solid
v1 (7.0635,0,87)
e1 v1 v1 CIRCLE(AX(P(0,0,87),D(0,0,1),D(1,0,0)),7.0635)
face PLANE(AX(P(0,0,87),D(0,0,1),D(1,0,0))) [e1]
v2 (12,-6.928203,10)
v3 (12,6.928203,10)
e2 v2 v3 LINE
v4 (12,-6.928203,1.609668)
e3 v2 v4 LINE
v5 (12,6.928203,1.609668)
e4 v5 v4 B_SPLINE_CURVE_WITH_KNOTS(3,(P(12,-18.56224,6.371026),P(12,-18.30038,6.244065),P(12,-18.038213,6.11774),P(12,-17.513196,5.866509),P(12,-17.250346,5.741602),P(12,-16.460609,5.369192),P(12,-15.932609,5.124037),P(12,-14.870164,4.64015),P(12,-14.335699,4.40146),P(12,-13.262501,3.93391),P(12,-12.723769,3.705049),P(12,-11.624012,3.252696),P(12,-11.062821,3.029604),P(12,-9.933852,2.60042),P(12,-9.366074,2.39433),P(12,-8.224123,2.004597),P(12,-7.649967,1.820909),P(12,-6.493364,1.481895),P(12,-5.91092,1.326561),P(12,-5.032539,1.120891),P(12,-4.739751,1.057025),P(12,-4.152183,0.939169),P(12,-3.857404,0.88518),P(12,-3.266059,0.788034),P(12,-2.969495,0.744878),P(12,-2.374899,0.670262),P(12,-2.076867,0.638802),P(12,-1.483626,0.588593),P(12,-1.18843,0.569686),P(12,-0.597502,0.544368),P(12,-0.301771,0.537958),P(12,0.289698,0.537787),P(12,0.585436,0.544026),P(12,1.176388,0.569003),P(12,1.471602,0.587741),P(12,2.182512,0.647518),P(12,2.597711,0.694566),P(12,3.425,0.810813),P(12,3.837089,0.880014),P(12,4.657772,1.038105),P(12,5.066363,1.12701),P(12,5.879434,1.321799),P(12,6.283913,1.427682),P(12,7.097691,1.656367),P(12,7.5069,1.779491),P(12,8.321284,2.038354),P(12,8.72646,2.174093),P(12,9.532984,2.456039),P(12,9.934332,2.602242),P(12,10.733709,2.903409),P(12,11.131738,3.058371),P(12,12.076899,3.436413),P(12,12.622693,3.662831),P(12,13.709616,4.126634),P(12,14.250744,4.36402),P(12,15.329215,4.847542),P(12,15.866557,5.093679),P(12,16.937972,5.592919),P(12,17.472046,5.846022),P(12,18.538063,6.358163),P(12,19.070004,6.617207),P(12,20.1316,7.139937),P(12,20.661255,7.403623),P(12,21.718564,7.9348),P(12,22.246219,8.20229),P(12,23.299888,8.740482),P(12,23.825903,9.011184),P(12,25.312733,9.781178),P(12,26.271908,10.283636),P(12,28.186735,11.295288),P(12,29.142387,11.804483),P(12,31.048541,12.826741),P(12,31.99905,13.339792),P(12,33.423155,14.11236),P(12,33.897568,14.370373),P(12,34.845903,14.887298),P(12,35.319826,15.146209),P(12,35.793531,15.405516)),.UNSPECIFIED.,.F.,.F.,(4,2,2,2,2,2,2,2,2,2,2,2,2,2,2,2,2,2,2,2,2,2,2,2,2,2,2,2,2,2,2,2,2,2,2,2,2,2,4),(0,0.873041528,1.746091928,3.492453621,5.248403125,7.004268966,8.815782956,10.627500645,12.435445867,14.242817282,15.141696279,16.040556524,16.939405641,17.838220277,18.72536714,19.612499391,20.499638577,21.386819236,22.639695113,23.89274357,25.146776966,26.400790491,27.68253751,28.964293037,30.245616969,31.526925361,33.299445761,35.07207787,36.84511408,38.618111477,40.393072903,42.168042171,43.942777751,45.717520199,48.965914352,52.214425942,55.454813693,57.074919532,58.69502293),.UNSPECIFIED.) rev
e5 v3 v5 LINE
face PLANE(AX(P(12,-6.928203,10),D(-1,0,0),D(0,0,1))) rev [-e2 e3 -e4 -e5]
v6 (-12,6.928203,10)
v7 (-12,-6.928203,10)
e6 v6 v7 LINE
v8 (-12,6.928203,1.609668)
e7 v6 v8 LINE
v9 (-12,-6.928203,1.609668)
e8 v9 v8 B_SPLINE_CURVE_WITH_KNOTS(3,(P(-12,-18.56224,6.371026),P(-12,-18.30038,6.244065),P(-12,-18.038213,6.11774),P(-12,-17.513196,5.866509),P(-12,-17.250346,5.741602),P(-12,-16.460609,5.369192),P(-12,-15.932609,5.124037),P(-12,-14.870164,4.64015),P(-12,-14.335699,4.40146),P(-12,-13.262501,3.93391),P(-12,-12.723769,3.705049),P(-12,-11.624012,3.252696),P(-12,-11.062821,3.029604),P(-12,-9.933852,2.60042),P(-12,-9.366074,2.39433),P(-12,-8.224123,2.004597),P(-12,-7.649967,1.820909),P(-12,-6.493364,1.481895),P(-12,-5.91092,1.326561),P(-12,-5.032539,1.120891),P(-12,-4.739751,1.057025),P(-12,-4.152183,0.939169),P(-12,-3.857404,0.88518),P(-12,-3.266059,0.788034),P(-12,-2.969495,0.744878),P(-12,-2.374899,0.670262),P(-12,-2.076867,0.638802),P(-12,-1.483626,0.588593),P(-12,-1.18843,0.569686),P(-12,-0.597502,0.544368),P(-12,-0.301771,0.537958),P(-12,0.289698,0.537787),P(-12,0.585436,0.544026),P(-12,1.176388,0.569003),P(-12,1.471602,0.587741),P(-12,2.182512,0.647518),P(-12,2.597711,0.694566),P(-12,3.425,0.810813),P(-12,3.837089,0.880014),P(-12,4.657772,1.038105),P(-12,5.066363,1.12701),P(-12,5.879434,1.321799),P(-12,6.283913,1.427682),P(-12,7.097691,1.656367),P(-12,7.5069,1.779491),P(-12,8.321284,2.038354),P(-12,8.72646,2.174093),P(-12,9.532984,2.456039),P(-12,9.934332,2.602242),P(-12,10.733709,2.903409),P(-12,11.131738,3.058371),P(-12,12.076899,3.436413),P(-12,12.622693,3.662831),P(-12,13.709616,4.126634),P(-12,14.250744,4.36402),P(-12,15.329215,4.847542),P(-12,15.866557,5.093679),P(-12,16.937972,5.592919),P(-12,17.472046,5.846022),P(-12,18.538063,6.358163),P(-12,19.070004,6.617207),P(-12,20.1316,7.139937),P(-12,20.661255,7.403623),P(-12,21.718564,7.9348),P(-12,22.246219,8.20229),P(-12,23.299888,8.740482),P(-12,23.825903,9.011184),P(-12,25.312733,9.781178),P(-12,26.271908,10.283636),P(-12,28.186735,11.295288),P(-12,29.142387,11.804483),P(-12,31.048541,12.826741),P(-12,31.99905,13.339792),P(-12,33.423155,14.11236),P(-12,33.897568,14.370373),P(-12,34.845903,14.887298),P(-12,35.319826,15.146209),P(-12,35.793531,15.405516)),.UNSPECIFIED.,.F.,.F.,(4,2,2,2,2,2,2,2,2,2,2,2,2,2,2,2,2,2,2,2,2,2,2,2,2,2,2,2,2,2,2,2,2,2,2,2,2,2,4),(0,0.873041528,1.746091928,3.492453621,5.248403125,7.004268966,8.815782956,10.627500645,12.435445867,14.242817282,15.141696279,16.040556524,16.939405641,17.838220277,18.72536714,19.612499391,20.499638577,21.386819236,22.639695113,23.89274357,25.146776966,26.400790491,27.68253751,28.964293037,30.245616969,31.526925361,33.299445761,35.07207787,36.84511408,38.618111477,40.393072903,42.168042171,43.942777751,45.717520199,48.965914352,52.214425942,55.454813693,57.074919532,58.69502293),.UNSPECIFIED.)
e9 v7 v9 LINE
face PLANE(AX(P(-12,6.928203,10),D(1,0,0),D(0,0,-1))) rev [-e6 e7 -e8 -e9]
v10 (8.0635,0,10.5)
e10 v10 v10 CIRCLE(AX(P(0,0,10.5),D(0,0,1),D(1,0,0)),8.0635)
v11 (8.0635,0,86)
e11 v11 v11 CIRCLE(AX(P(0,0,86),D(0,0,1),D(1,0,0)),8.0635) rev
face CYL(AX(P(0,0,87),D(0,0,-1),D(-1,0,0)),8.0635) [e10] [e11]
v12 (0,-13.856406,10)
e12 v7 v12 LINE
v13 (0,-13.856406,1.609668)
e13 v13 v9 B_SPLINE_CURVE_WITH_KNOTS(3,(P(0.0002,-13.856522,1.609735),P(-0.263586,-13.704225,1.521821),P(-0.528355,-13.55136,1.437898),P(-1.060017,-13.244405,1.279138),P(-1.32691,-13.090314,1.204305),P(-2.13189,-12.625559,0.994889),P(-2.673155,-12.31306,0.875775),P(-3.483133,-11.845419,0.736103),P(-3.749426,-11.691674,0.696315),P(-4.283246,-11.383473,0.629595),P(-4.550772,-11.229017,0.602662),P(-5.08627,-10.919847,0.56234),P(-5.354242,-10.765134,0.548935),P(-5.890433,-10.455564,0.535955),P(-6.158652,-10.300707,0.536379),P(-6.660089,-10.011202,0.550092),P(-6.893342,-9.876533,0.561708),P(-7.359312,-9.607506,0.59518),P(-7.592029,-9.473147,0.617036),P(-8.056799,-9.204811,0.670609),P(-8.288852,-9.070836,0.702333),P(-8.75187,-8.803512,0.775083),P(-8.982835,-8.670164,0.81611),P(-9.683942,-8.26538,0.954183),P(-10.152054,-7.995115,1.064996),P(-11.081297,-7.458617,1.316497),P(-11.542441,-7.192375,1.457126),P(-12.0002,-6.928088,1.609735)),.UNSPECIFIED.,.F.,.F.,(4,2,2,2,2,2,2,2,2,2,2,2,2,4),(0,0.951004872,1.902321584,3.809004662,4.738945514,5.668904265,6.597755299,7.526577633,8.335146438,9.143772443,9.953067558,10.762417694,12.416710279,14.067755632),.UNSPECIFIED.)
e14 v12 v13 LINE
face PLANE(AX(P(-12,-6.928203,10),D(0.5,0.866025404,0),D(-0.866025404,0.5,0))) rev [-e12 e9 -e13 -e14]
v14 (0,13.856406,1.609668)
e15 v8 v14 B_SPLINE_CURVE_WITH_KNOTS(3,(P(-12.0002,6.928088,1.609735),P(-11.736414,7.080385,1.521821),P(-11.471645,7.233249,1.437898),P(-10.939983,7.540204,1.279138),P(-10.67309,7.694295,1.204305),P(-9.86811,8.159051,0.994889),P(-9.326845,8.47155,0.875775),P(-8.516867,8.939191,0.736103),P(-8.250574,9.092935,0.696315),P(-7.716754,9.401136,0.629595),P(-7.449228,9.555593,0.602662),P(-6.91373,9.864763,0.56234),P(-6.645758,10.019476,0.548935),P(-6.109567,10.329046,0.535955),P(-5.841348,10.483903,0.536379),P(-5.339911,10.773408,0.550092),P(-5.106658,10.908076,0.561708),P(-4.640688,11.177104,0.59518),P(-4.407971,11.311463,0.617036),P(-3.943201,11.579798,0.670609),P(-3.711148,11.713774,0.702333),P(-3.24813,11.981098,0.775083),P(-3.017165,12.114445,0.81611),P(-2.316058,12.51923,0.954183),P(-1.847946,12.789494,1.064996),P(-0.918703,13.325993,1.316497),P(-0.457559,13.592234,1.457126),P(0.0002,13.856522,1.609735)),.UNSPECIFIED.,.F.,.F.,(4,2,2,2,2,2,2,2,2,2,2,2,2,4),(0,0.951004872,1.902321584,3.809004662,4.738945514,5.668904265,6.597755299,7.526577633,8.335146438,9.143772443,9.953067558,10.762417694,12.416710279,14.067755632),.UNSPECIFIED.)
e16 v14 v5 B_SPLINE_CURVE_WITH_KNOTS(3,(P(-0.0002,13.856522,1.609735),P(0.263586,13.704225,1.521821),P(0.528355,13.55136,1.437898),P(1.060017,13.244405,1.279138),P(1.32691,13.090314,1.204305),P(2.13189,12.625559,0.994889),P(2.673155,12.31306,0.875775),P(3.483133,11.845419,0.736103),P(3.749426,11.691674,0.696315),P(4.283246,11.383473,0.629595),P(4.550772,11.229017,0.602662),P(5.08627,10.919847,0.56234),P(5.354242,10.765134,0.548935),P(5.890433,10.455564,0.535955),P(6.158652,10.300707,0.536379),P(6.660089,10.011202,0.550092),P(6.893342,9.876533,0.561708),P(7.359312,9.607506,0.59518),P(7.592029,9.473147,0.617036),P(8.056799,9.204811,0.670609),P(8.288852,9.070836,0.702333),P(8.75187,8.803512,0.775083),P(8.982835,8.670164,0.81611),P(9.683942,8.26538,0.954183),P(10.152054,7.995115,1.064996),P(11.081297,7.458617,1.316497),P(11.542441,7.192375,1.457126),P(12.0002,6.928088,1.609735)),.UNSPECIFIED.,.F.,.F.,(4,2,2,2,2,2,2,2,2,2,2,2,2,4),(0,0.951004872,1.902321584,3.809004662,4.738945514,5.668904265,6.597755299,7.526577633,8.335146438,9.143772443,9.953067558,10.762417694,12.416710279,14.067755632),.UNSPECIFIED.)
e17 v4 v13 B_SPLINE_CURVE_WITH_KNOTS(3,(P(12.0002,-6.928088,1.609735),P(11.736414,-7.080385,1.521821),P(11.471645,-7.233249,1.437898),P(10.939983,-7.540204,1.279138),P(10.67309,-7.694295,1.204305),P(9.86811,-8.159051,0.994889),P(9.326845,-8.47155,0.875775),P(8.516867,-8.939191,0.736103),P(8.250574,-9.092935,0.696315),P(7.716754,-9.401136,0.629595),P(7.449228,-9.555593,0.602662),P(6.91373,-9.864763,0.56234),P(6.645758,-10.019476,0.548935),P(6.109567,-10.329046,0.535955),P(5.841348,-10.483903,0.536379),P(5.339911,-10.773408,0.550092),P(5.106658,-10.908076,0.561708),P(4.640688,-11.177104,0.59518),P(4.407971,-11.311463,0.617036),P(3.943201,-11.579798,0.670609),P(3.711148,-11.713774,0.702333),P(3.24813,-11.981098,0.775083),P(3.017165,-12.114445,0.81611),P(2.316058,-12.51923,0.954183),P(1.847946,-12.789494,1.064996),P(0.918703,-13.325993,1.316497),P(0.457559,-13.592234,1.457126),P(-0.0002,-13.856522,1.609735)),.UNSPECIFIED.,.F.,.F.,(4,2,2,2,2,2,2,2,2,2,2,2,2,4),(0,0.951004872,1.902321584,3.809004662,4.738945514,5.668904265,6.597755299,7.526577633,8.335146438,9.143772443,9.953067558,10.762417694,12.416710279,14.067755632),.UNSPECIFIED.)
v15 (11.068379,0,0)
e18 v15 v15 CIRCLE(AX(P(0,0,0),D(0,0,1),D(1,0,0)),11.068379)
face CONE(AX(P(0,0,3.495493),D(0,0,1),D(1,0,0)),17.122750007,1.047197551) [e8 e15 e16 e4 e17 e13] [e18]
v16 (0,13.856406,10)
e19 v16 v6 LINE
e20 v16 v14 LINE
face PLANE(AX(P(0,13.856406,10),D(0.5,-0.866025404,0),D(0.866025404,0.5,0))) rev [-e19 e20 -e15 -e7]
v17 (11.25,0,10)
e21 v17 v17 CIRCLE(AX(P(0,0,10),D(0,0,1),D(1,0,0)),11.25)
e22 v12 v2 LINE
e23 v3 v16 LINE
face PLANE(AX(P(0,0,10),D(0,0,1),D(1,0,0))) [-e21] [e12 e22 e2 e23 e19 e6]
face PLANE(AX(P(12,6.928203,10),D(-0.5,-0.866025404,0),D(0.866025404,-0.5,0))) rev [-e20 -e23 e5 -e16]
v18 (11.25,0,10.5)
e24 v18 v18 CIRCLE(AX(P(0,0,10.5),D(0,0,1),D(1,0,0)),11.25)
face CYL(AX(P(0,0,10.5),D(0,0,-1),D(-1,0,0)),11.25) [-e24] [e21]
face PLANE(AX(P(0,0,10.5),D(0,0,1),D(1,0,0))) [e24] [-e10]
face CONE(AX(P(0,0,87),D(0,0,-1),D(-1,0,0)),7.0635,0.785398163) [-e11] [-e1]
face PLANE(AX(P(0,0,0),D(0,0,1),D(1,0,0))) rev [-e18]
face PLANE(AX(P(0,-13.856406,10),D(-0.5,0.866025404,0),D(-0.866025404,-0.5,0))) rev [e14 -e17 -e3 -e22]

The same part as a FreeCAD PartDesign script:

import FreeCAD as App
import Part
import Sketcher
Q = App.Units.Quantity


def edges_at(feature, points):
    """Names of the edges that pass closest to the given points."""
    edges = feature.Shape.Edges
    near = lambda p: min(range(len(edges)), key=lambda i: edges[i].distToShape(Part.Vertex(*p))[0])
    return sorted({f"Edge{near(p) + 1}" for p in points})

doc = App.newDocument("Part")
params = doc.addObject("Spreadsheet::Sheet", "Params")
for row, (alias, value) in enumerate([
    ("pad1_length", "10 mm"),
    ("pad2_length", "77 mm"),
    ("groove_angle", "360 deg"),
    ("sketch4_diameter", "22.5 mm"),
    ("pad3_length", "0.5 mm"),
    ("chamfer_size", "1 mm"),
], start=1):
    params.set(f"A{row}", alias)
    params.set(f"B{row}", "=" + value)
    params.setAlias(f"B{row}", alias)

body = doc.addObject("PartDesign::Body", "Body")

sketch1 = body.newObject("Sketcher::SketchObject", "Sketch")
sketch1.AttachmentSupport = (doc.getObject("XY_Plane"), [""])
sketch1.MapMode = "FlatFace"
sketch1.addGeometry([
    Part.LineSegment(App.Vector(0, 14, 0), App.Vector(-12, 7, 0)),
    Part.LineSegment(App.Vector(-12, 7, 0), App.Vector(-12, -7, 0)),
    Part.LineSegment(App.Vector(-12, -7, 0), App.Vector(0, -14, 0)),
    Part.LineSegment(App.Vector(0, -14, 0), App.Vector(12, -7, 0)),
    Part.LineSegment(App.Vector(12, -7, 0), App.Vector(12, 7, 0)),
    Part.LineSegment(App.Vector(12, 7, 0), App.Vector(0, 14, 0)),
], False)
sketch1.addConstraint([
    Sketcher.Constraint("Coincident", 0, 2, 1, 1),
    Sketcher.Constraint("Coincident", 1, 2, 2, 1),
    Sketcher.Constraint("Coincident", 2, 2, 3, 1),
    Sketcher.Constraint("Coincident", 3, 2, 4, 1),
    Sketcher.Constraint("Coincident", 4, 2, 5, 1),
    Sketcher.Constraint("Coincident", 5, 2, 0, 1),
    Sketcher.Constraint("Vertical", 1),
    Sketcher.Constraint("Vertical", 4),
    Sketcher.Constraint("Symmetric", 0, 2, 3, 2, -1, 1),
    Sketcher.Constraint("Symmetric", 2, 2, 5, 2, -1, 1),
    Sketcher.Constraint("PointOnObject", 2, 2, -2),
    Sketcher.Constraint("Parallel", 2, 5),
    Sketcher.Constraint("Horizontal", 1, 2, 3, 2),
    Sketcher.Constraint("Angle", 0, Q("-150 deg")),
    Sketcher.Constraint("DistanceX", 0, 2, -1, 1, 12.0),
    Sketcher.Constraint("DistanceY", 1, 2, 1, 1, 13.856406),
])
pad1 = body.newObject("PartDesign::Pad", "Pad")
pad1.Profile = sketch1
pad1.setExpression("Length", "Params.pad1_length")

sketch2 = body.newObject("Sketcher::SketchObject", "Sketch001")
sketch2.AttachmentSupport = (doc.getObject("XY_Plane"), [""])
sketch2.MapMode = "FlatFace"
sketch2.AttachmentOffset = App.Placement(App.Vector(0, 0, 10), App.Rotation())
sketch2.addGeometry(Part.Circle(App.Vector(0, 0, 0), App.Vector(0, 0, 1), 8), False)
sketch2.addConstraint([
    Sketcher.Constraint("Coincident", 0, 3, -1, 1),
    Sketcher.Constraint("Diameter", 0, 16.127),
])
pad2 = body.newObject("PartDesign::Pad", "Pad001")
pad2.Profile = sketch2
pad2.setExpression("Length", "Params.pad2_length")

sketch3 = body.newObject("Sketcher::SketchObject", "Sketch002")
sketch3.AttachmentSupport = (doc.getObject("YZ_Plane"), [""])
sketch3.MapMode = "FlatFace"
sketch3.addGeometry([
    Part.LineSegment(App.Vector(17.1, 3.5, 0), App.Vector(10.3, -0.5, 0)),
    Part.LineSegment(App.Vector(10.3, -0.5, 0), App.Vector(17.1, -0.5, 0)),
    Part.LineSegment(App.Vector(17.1, -0.5, 0), App.Vector(17.1, 3.5, 0)),
], False)
sketch3.addConstraint([
    Sketcher.Constraint("Coincident", 0, 2, 1, 1),
    Sketcher.Constraint("Coincident", 1, 2, 2, 1),
    Sketcher.Constraint("Coincident", 2, 2, 0, 1),
    Sketcher.Constraint("Horizontal", 1),
    Sketcher.Constraint("Vertical", 2),
    Sketcher.Constraint("Angle", 0, Q("-150 deg")),
    Sketcher.Constraint("Distance", 0, 7.923609),
    Sketcher.Constraint("DistanceX", -1, 1, 1, 2, 17.12275),
    Sketcher.Constraint("DistanceY", 0, 2, -1, 1, 0.466312),
])
groove = body.newObject("PartDesign::Groove", "Groove")
groove.Profile = sketch3
groove.ReferenceAxis = (sketch3, ["V_Axis"])
groove.setExpression("Angle", "Params.groove_angle")

sketch4 = body.newObject("Sketcher::SketchObject", "Sketch003")
sketch4.AttachmentSupport = (doc.getObject("XY_Plane"), [""])
sketch4.MapMode = "FlatFace"
sketch4.AttachmentOffset = App.Placement(App.Vector(0, 0, 10), App.Rotation())
sketch4.addGeometry(Part.Circle(App.Vector(0, 0, 0), App.Vector(0, 0, 1), 11), False)
sketch4.addConstraint([
    Sketcher.Constraint("Coincident", 0, 3, -1, 1),
    Sketcher.Constraint("Diameter", 0, 22.5),
])
sketch4.setExpression("Constraints[1]", "Params.sketch4_diameter")
pad3 = body.newObject("PartDesign::Pad", "Pad002")
pad3.Profile = sketch4
pad3.setExpression("Length", "Params.pad3_length")
doc.recompute()

chamfer = body.newObject("PartDesign::Chamfer", "Chamfer")
chamfer.Base = (pad3, edges_at(pad3, [(-8.063, 0, 87)]))
chamfer.setExpression("Size", "Params.chamfer_size")

doc.recompute()
